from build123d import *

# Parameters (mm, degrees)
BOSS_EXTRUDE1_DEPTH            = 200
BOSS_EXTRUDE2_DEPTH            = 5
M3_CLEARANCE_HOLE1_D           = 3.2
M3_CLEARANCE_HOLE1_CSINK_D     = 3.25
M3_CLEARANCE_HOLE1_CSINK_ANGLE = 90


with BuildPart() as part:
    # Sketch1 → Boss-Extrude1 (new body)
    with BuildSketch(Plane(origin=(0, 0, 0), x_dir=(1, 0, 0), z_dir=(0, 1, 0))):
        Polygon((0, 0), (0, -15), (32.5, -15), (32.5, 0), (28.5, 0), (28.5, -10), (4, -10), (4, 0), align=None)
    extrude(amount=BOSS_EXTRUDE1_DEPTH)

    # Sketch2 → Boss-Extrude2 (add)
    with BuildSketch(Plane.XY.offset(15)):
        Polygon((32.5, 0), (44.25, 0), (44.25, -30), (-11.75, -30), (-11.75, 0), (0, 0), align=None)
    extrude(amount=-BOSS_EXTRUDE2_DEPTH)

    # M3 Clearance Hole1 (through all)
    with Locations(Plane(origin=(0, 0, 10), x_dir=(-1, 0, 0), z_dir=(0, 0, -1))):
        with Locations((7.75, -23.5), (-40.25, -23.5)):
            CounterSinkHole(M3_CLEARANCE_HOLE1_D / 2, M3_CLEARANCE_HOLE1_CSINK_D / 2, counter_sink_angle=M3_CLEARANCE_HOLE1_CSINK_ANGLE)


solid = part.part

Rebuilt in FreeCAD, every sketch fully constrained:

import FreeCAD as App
import Part
import Sketcher

V = App.Vector

doc = App.newDocument("Part")
params = doc.addObject("Spreadsheet::Sheet", "Params")
for row, (alias, value) in enumerate([
    ("sketch1_width", "4 mm"),
    ("sketch1_height", "15 mm"),
    ("sketch1_height2", "10 mm"),
    ("sketch1_width2", "32.5 mm"),
    ("pad1_length", "200 mm"),
    ("sketch2_width", "56 mm"),
    ("sketch2_height", "30 mm"),
    ("pad2_length", "5 mm"),
    ("sketch3_diameter", "3.2 mm"),
    ("hole_diameter", "3.2 mm"),
    ("hole_csink_diameter", "3.25 mm"),
], start=1):
    params.set(f"A{row}", alias)
    params.set(f"B{row}", "=" + value)
    params.setAlias(f"B{row}", alias)

body = doc.addObject("PartDesign::Body", "Body")

sketch1 = body.newObject("Sketcher::SketchObject", "Sketch")
sketch1.AttachmentSupport = (doc.getObject("XZ_Plane"), [""])
sketch1.MapMode = "FlatFace"
sketch1.addGeometry(Part.LineSegment(V(0, 0, 0), V(0, 15, 0)), False)
sketch1.addGeometry(Part.LineSegment(V(0, 15, 0), V(32.5, 15, 0)), False)
sketch1.addGeometry(Part.LineSegment(V(32.5, 15, 0), V(32.5, 0, 0)), False)
sketch1.addGeometry(Part.LineSegment(V(32.5, 0, 0), V(28.5, 0, 0)), False)
sketch1.addGeometry(Part.LineSegment(V(28.5, 0, 0), V(28.5, 10, 0)), False)
sketch1.addGeometry(Part.LineSegment(V(28.5, 10, 0), V(4, 10, 0)), False)
sketch1.addGeometry(Part.LineSegment(V(4, 10, 0), V(4, 0, 0)), False)
sketch1.addGeometry(Part.LineSegment(V(4, 0, 0), V(0, 0, 0)), False)
sketch1.addConstraint(Sketcher.Constraint("Coincident", 0, 2, 1, 1))
sketch1.addConstraint(Sketcher.Constraint("Coincident", 1, 2, 2, 1))
sketch1.addConstraint(Sketcher.Constraint("Coincident", 2, 2, 3, 1))
sketch1.addConstraint(Sketcher.Constraint("Coincident", 3, 2, 4, 1))
sketch1.addConstraint(Sketcher.Constraint("Coincident", 4, 2, 5, 1))
sketch1.addConstraint(Sketcher.Constraint("Coincident", 5, 2, 6, 1))
sketch1.addConstraint(Sketcher.Constraint("Coincident", 6, 2, 7, 1))
sketch1.addConstraint(Sketcher.Constraint("Coincident", 7, 2, 0, 1))
sketch1.addConstraint(Sketcher.Constraint("Vertical", 0))
sketch1.addConstraint(Sketcher.Constraint("Horizontal", 1))
sketch1.addConstraint(Sketcher.Constraint("Vertical", 2))
sketch1.addConstraint(Sketcher.Constraint("Horizontal", 3))
sketch1.addConstraint(Sketcher.Constraint("Vertical", 4))
sketch1.addConstraint(Sketcher.Constraint("Horizontal", 5))
sketch1.addConstraint(Sketcher.Constraint("Vertical", 6))
sketch1.addConstraint(Sketcher.Constraint("Horizontal", 7))
sketch1.addConstraint(Sketcher.Constraint("Coincident", 7, 2, -1, 1))
sketch1.addConstraint(Sketcher.Constraint("PointOnObject", 2, 2, -1))
sketch1.addConstraint(Sketcher.Constraint("Equal", 3, 7))
sketch1.addConstraint(Sketcher.Constraint("DistanceX", 3, 2, 3, 1, 4.0))
sketch1.addConstraint(Sketcher.Constraint("DistanceY", 0, 1, 0, 2, 15.0))
sketch1.addConstraint(Sketcher.Constraint("DistanceY", 4, 1, 4, 2, 10.0))
sketch1.addConstraint(Sketcher.Constraint("DistanceX", 1, 1, 1, 2, 32.5))
sketch1.setExpression("Constraints[19]", "Params.sketch1_width")
sketch1.setExpression("Constraints[20]", "Params.sketch1_height")
sketch1.setExpression("Constraints[21]", "Params.sketch1_height2")
sketch1.setExpression("Constraints[22]", "Params.sketch1_width2")
pad1 = body.newObject("PartDesign::Pad", "Pad")
pad1.Profile = sketch1
pad1.setExpression("Length", "Params.pad1_length")
pad1.Reversed = True

sketch2 = body.newObject("Sketcher::SketchObject", "Sketch001")
sketch2.AttachmentSupport = (doc.getObject("XY_Plane"), [""])
sketch2.MapMode = "FlatFace"
sketch2.AttachmentOffset = App.Placement(V(0, 0, 15), App.Rotation())
sketch2.addGeometry(Part.LineSegment(V(44, 0, 0), V(-12, 0, 0)), False)
sketch2.addGeometry(Part.LineSegment(V(-12, 0, 0), V(-12, -30, 0)), False)
sketch2.addGeometry(Part.LineSegment(V(-12, -30, 0), V(44, -30, 0)), False)
sketch2.addGeometry(Part.LineSegment(V(44, -30, 0), V(44, 0, 0)), False)
sketch2.addConstraint(Sketcher.Constraint("Coincident", 0, 2, 1, 1))
sketch2.addConstraint(Sketcher.Constraint("Coincident", 1, 2, 2, 1))
sketch2.addConstraint(Sketcher.Constraint("Coincident", 2, 2, 3, 1))
sketch2.addConstraint(Sketcher.Constraint("Coincident", 3, 2, 0, 1))
sketch2.addConstraint(Sketcher.Constraint("Horizontal", 0))
sketch2.addConstraint(Sketcher.Constraint("Vertical", 1))
sketch2.addConstraint(Sketcher.Constraint("Horizontal", 2))
sketch2.addConstraint(Sketcher.Constraint("Vertical", 3))
sketch2.addConstraint(Sketcher.Constraint("PointOnObject", 0, 2, -1))
sketch2.addConstraint(Sketcher.Constraint("DistanceX", 0, 2, 0, 1, 56.0))
sketch2.addConstraint(Sketcher.Constraint("DistanceY", 1, 2, 1, 1, 30.0))
sketch2.addConstraint(Sketcher.Constraint("DistanceX", 0, 2, -1, 1, 11.75))
sketch2.setExpression("Constraints[9]", "Params.sketch2_width")
sketch2.setExpression("Constraints[10]", "Params.sketch2_height")
pad2 = body.newObject("PartDesign::Pad", "Pad001")
pad2.Profile = sketch2
pad2.setExpression("Length", "Params.pad2_length")
pad2.Reversed = True

sketch3 = body.newObject("Sketcher::SketchObject", "Sketch002")
sketch3.AttachmentSupport = (doc.getObject("XY_Plane"), [""])
sketch3.MapMode = "FlatFace"
sketch3.AttachmentOffset = App.Placement(V(0, 0, 10), App.Rotation())
sketch3.addGeometry(Part.Circle(V(-7.8, -23.5, 0), V(0, 0, 1), 1.6), False)
sketch3.addGeometry(Part.Circle(V(40.2, -23.5, 0), V(0, 0, 1), 1.6), False)
sketch3.addConstraint(Sketcher.Constraint("Equal", 0, 1))
sketch3.addConstraint(Sketcher.Constraint("Horizontal", 0, 3, 1, 3))
sketch3.addConstraint(Sketcher.Constraint("Diameter", 0, 3.2))
sketch3.addConstraint(Sketcher.Constraint("DistanceX", 0, 3, 1, 3, 48.0))
sketch3.addConstraint(Sketcher.Constraint("DistanceY", 0, 3, -1, 1, 23.5))
sketch3.addConstraint(Sketcher.Constraint("DistanceX", 0, 3, -1, 1, 7.75))
sketch3.setExpression("Constraints[2]", "Params.sketch3_diameter")
doc.recompute()
hole = body.newObject("PartDesign::Hole", "Hole")
hole.Profile = sketch3
hole.ThreadType = "None"
hole.setExpression("Diameter", "Params.hole_diameter")
hole.DepthType = "ThroughAll"
hole.HoleCutType = "Countersink"
hole.setExpression("HoleCutDiameter", "Params.hole_csink_diameter")
hole.HoleCutCountersinkAngle = 90
hole.Reversed = True

doc.recompute()
